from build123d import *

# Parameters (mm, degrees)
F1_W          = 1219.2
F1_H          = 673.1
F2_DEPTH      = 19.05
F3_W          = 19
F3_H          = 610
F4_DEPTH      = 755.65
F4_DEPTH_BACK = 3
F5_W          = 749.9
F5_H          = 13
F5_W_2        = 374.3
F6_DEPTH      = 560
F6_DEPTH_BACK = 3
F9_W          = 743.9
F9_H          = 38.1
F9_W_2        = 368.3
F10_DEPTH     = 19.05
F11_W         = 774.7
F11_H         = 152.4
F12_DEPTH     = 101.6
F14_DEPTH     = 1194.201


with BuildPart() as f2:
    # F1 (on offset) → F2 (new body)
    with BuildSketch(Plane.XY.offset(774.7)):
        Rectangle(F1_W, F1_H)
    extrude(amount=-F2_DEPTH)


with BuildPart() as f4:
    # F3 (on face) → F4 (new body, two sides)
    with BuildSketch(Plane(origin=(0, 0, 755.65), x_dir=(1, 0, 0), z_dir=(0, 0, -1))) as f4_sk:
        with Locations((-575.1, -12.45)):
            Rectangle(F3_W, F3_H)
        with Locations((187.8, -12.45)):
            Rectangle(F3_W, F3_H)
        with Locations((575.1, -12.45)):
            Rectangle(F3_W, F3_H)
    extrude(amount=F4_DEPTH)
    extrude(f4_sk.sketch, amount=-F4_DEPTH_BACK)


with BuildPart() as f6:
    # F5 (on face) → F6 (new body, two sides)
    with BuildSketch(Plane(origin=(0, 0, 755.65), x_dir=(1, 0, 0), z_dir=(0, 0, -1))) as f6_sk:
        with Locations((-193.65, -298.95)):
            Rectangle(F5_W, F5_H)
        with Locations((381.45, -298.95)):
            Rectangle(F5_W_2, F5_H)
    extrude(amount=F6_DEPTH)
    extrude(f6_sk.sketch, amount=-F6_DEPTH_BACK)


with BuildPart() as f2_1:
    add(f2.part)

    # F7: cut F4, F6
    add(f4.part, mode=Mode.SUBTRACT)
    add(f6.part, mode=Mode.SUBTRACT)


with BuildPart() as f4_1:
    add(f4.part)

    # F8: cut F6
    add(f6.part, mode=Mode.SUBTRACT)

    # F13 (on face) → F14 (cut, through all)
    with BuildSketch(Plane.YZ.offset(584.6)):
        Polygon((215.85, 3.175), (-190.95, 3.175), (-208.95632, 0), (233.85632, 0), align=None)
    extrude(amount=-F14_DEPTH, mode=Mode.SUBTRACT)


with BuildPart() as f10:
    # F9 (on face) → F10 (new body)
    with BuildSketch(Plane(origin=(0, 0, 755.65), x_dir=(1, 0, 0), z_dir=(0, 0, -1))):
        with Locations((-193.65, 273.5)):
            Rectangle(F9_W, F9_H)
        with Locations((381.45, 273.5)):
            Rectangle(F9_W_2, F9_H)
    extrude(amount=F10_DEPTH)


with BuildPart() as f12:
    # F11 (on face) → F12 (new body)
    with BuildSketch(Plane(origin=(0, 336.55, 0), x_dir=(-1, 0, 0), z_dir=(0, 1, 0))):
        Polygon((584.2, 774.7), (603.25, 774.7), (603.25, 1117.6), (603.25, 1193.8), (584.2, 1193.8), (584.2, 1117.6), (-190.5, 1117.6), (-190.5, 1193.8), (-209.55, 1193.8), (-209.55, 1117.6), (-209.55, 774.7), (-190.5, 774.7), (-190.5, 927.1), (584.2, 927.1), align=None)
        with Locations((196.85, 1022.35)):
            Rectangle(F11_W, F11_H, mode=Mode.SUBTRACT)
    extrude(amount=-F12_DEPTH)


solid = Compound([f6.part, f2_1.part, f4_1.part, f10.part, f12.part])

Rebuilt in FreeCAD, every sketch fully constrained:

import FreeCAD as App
import Part
import Sketcher
Q = App.Units.Quantity


def add_polygon(sketch, points):
    """Adds a closed chain of lines whose ends are joined by coincident constraints."""
    first, n = sketch.GeometryCount, len(points)
    for a, b in zip(points, points[1:] + points[:1]):
        sketch.addGeometry(Part.LineSegment(App.Vector(*a, 0), App.Vector(*b, 0)), False)
    for i in range(n):
        sketch.addConstraint(Sketcher.Constraint("Coincident", first + i, 2, first + (i + 1) % n, 1))

doc = App.newDocument("Part")
body = doc.addObject("PartDesign::Body", "Body")

# Sketch on XY plane
sketch1 = body.newObject("Sketcher::SketchObject", "Sketch")
sketch1.AttachmentSupport = (doc.getObject("XY_Plane"), [""])
sketch1.MapMode = "FlatFace"
sketch1.AttachmentOffset = App.Placement(App.Vector(0, 0, 30.5 * 25.4), App.Rotation())
add_polygon(sketch1, [(-610, 337), (-610, -337), (610, -337), (610, 337)])  # lines 0-3
sketch1.addConstraint(Sketcher.Constraint("Vertical", 0))
sketch1.addConstraint(Sketcher.Constraint("Horizontal", 1))
sketch1.addConstraint(Sketcher.Constraint("Vertical", 2))
sketch1.addConstraint(Sketcher.Constraint("Horizontal", 3))
sketch1.addConstraint(Sketcher.Constraint("Symmetric", 0, 2, 2, 2, -1, 1))
sketch1.addConstraint(Sketcher.Constraint("DistanceX", 1, 1, 1, 2, Q("48 in")))
sketch1.addConstraint(Sketcher.Constraint("DistanceY", 0, 2, 0, 1, Q("26.5 in")))
pad1 = body.newObject("PartDesign::Pad", "Pad")
pad1.Profile = sketch1
pad1.Length = Q("0.75 in")
pad1.Reversed = True
body2 = doc.addObject("PartDesign::Body", "Body001")
body2.AllowCompound = True

# Sketch on XY plane
sketch2 = body2.newObject("Sketcher::SketchObject", "Sketch001")
sketch2.AttachmentSupport = (doc.getObject("XY_Plane001"), [""])
sketch2.MapMode = "FlatFace"
sketch2.AttachmentOffset = App.Placement(App.Vector(0, 0, 29.75 * 25.4), App.Rotation())
add_polygon(sketch2, [(-585, -293), (-585, 317), (-566, 317), (-566, -293)])  # lines 0-3
add_polygon(sketch2, [(178, -293), (178, 317), (197, 317), (197, -293)])  # lines 4-7
add_polygon(sketch2, [(566, -293), (566, 317), (585, 317), (585, -293)])  # lines 8-11
sketch2.addConstraint(Sketcher.Constraint("Vertical", 0))
sketch2.addConstraint(Sketcher.Constraint("Horizontal", 1))
sketch2.addConstraint(Sketcher.Constraint("Vertical", 2))
sketch2.addConstraint(Sketcher.Constraint("Horizontal", 3))
sketch2.addConstraint(Sketcher.Constraint("Vertical", 4))
sketch2.addConstraint(Sketcher.Constraint("Horizontal", 5))
sketch2.addConstraint(Sketcher.Constraint("Vertical", 6))
sketch2.addConstraint(Sketcher.Constraint("Horizontal", 7))
sketch2.addConstraint(Sketcher.Constraint("Vertical", 8))
sketch2.addConstraint(Sketcher.Constraint("Horizontal", 9))
sketch2.addConstraint(Sketcher.Constraint("Vertical", 10))
sketch2.addConstraint(Sketcher.Constraint("Horizontal", 11))
sketch2.addConstraint(Sketcher.Constraint("Symmetric", 1, 2, 8, 2, -2))
sketch2.addConstraint(Sketcher.Constraint("Symmetric", 3, 2, 10, 2, -2))
sketch2.addConstraint(Sketcher.Constraint("Horizontal", 1, 2, 4, 2))
sketch2.addConstraint(Sketcher.Constraint("Horizontal", 3, 2, 6, 2))
sketch2.addConstraint(Sketcher.Constraint("Equal", 3, 5))
sketch2.addConstraint(Sketcher.Constraint("DistanceX", 5, 2, 8, 2, Q("14.5 in")))
sketch2.addConstraint(Sketcher.Constraint("DistanceX", 1, 1, 1, 2, Q("19 mm")))
sketch2.addConstraint(Sketcher.Constraint("DistanceY", 0, 1, 0, 2, Q("610 mm")))
sketch2.addConstraint(Sketcher.Constraint("DistanceX", 0, 2, -1, 1, Q("584.6 mm")))
sketch2.addConstraint(Sketcher.Constraint("DistanceY", -1, 1, 0, 2, Q("317.45 mm")))
pad2 = body2.newObject("PartDesign::Pad", "Pad001")
pad2.Profile = sketch2
pad2.Type = "TwoLengths"
pad2.Length = Q("29.75 in")
pad2.Length2 = 3
pad2.Reversed = True
body3 = doc.addObject("PartDesign::Body", "Body002")
body3.AllowCompound = True

# Sketch on XY plane
sketch3 = body3.newObject("Sketcher::SketchObject", "Sketch002")
sketch3.AttachmentSupport = (doc.getObject("XY_Plane002"), [""])
sketch3.MapMode = "FlatFace"
sketch3.AttachmentOffset = App.Placement(App.Vector(0, 0, 29.75 * 25.4), App.Rotation())
add_polygon(sketch3, [(-569, 292), (-569, 305), (181, 305), (181, 292)])  # lines 0-3
add_polygon(sketch3, [(194, 292), (194, 305), (569, 305), (569, 292)])  # lines 4-7
sketch3.addConstraint(Sketcher.Constraint("Vertical", 0))
sketch3.addConstraint(Sketcher.Constraint("Horizontal", 1))
sketch3.addConstraint(Sketcher.Constraint("Vertical", 2))
sketch3.addConstraint(Sketcher.Constraint("Horizontal", 3))
sketch3.addConstraint(Sketcher.Constraint("Vertical", 4))
sketch3.addConstraint(Sketcher.Constraint("Horizontal", 5))
sketch3.addConstraint(Sketcher.Constraint("Vertical", 6))
sketch3.addConstraint(Sketcher.Constraint("Horizontal", 7))
sketch3.addConstraint(Sketcher.Constraint("Symmetric", 0, 2, 5, 2, -2))
sketch3.addConstraint(Sketcher.Constraint("Horizontal", 3, 2, 6, 2))
sketch3.addConstraint(Sketcher.Constraint("DistanceX", 1, 1, 1, 2, Q("749.9 mm")))
sketch3.addConstraint(Sketcher.Constraint("DistanceX", 5, 1, 5, 2, Q("374.3 mm")))
sketch3.addConstraint(Sketcher.Constraint("DistanceY", 0, 1, 0, 2, Q("13 mm")))
sketch3.addConstraint(Sketcher.Constraint("DistanceX", 0, 2, -1, 1, Q("568.6 mm")))
sketch3.addConstraint(Sketcher.Constraint("DistanceY", -1, 1, 0, 2, Q("305.45 mm")))
pad3 = body3.newObject("PartDesign::Pad", "Pad002")
pad3.Profile = sketch3
pad3.Type = "TwoLengths"
pad3.Length = 560
pad3.Length2 = 3
pad3.Reversed = True
doc.recompute()

body4 = doc.addObject("PartDesign::Body", "Body003")
body4.BaseFeature = body2
boolean = body.newObject("PartDesign::Boolean", "Boolean")
boolean.Type = "Cut"
boolean.addObjects([body4])
doc.recompute()

body5 = doc.addObject("PartDesign::Body", "Body004")
body5.BaseFeature = body3
boolean2 = body.newObject("PartDesign::Boolean", "Boolean001")
boolean2.Type = "Cut"
boolean2.addObjects([body5])
doc.recompute()
body2.AllowCompound = True
doc.recompute()

body6 = doc.addObject("PartDesign::Body", "Body005")
body6.BaseFeature = body3
boolean3 = body2.newObject("PartDesign::Boolean", "Boolean002")
boolean3.Type = "Cut"
boolean3.addObjects([body6])
doc.recompute()

# Sketch on YZ plane
sketch4 = body2.newObject("Sketcher::SketchObject", "Sketch003")
sketch4.AttachmentSupport = (doc.getObject("YZ_Plane001"), [""])
sketch4.MapMode = "FlatFace"
sketch4.AttachmentOffset = App.Placement(App.Vector(0, 0, 584.6), App.Rotation())
add_polygon(sketch4, [(216, 3), (-191, 3), (-209, 0), (234, 0)])  # lines 0-3
sketch4.addConstraint(Sketcher.Constraint("Horizontal", 0))
sketch4.addConstraint(Sketcher.Constraint("Horizontal", 2))
sketch4.addConstraint(Sketcher.Constraint("PointOnObject", 1, 2, -1))
sketch4.addConstraint(Sketcher.Constraint("Equal", 1, 3))
sketch4.addConstraint(Sketcher.Constraint("Angle", 1, Q("-170 deg")))
sketch4.addConstraint(Sketcher.Constraint("DistanceY", -1, 1, 0, 2, Q("0.125 in")))
sketch4.addConstraint(Sketcher.Constraint("DistanceX", 0, 2, 0, 1, Q("406.8 mm")))
sketch4.addConstraint(Sketcher.Constraint("DistanceX", 0, 2, -1, 1, Q("190.95 mm")))
pocket1 = body2.newObject("PartDesign::Pocket", "Pocket")
pocket1.Profile = sketch4
pocket1.Type = "ThroughAll"
body7 = doc.addObject("PartDesign::Body", "Body006")
body7.AllowCompound = True

# Sketch on XY plane
sketch5 = body7.newObject("Sketcher::SketchObject", "Sketch004")
sketch5.AttachmentSupport = (doc.getObject("XY_Plane006"), [""])
sketch5.MapMode = "FlatFace"
sketch5.AttachmentOffset = App.Placement(App.Vector(0, 0, 29.75 * 25.4), App.Rotation())
add_polygon(sketch5, [(-566, -293), (-566, -254), (178, -254), (178, -293)])  # lines 0-3
add_polygon(sketch5, [(197, -293), (197, -254), (566, -254), (566, -293)])  # lines 4-7
sketch5.addConstraint(Sketcher.Constraint("Vertical", 0))
sketch5.addConstraint(Sketcher.Constraint("Horizontal", 1))
sketch5.addConstraint(Sketcher.Constraint("Vertical", 2))
sketch5.addConstraint(Sketcher.Constraint("Horizontal", 3))
sketch5.addConstraint(Sketcher.Constraint("Vertical", 4))
sketch5.addConstraint(Sketcher.Constraint("Horizontal", 5))
sketch5.addConstraint(Sketcher.Constraint("Vertical", 6))
sketch5.addConstraint(Sketcher.Constraint("Horizontal", 7))
sketch5.addConstraint(Sketcher.Constraint("Symmetric", 0, 2, 5, 2, -2))
sketch5.addConstraint(Sketcher.Constraint("Horizontal", 3, 2, 6, 2))
sketch5.addConstraint(Sketcher.Constraint("DistanceX", 5, 1, 5, 2, Q("14.5 in")))
sketch5.addConstraint(Sketcher.Constraint("DistanceY", 0, 1, 0, 2, Q("1.5 in")))
sketch5.addConstraint(Sketcher.Constraint("DistanceX", 1, 1, 1, 2, Q("743.9 mm")))
sketch5.addConstraint(Sketcher.Constraint("DistanceX", 0, 2, -1, 1, Q("565.6 mm")))
sketch5.addConstraint(Sketcher.Constraint("DistanceY", 0, 2, -1, 1, Q("254.45 mm")))
pad4 = body7.newObject("PartDesign::Pad", "Pad003")
pad4.Profile = sketch5
pad4.Length = Q("0.75 in")
pad4.Reversed = True
body8 = doc.addObject("PartDesign::Body", "Body007")

# Sketch on XZ plane
sketch6 = body8.newObject("Sketcher::SketchObject", "Sketch005")
sketch6.AttachmentSupport = (doc.getObject("XZ_Plane007"), [""])
sketch6.MapMode = "FlatFace"
sketch6.AttachmentOffset = App.Placement(App.Vector(0, 0, -13.25 * 25.4), App.Rotation())
add_polygon(sketch6, [(-584, 775), (-603, 775), (-603, 1194), (-584, 1194), (-584, 1118), (190, 1118), (190, 1194), (210, 1194), (210, 775), (190, 775), (190, 927), (-584, 927)])  # lines 0-11
add_polygon(sketch6, [(-584, 946), (190, 946), (190, 1099), (-584, 1099)])  # lines 12-15
sketch6.addConstraint(Sketcher.Constraint("Horizontal", 0))
sketch6.addConstraint(Sketcher.Constraint("Vertical", 1))
sketch6.addConstraint(Sketcher.Constraint("Horizontal", 2))
sketch6.addConstraint(Sketcher.Constraint("Vertical", 3))
sketch6.addConstraint(Sketcher.Constraint("Horizontal", 4))
sketch6.addConstraint(Sketcher.Constraint("Vertical", 5))
sketch6.addConstraint(Sketcher.Constraint("Horizontal", 6))
sketch6.addConstraint(Sketcher.Constraint("Vertical", 7))
sketch6.addConstraint(Sketcher.Constraint("Horizontal", 8))
sketch6.addConstraint(Sketcher.Constraint("Vertical", 9))
sketch6.addConstraint(Sketcher.Constraint("Horizontal", 10))
sketch6.addConstraint(Sketcher.Constraint("Vertical", 11))
sketch6.addConstraint(Sketcher.Constraint("Horizontal", 12))
sketch6.addConstraint(Sketcher.Constraint("Vertical", 13))
sketch6.addConstraint(Sketcher.Constraint("Horizontal", 14))
sketch6.addConstraint(Sketcher.Constraint("Vertical", 15))
sketch6.addConstraint(Sketcher.Constraint("Horizontal", 2, 2, 5, 2))
sketch6.addConstraint(Sketcher.Constraint("Horizontal", 0, 2, 7, 2))
sketch6.addConstraint(Sketcher.Constraint("Vertical", 5, 2, 8, 2))
sketch6.addConstraint(Sketcher.Constraint("Vertical", 3, 2, 10, 2))
sketch6.addConstraint(Sketcher.Constraint("Vertical", 9, 2, 12, 2))
sketch6.addConstraint(Sketcher.Constraint("Vertical", 11, 2, 14, 2))
sketch6.addConstraint(Sketcher.Constraint("Equal", 2, 6))
sketch6.addConstraint(Sketcher.Constraint("Equal", 11, 13))
sketch6.addConstraint(Sketcher.Constraint("DistanceY", 3, 2, 3, 1, Q("3 in")))
sketch6.addConstraint(Sketcher.Constraint("DistanceY", 9, 1, 9, 2, Q("6 in")))
sketch6.addConstraint(Sketcher.Constraint("DistanceX", 4, 1, 4, 2, Q("30.5 in")))
sketch6.addConstraint(Sketcher.Constraint("DistanceY", 1, 1, 1, 2, Q("16.5 in")))
sketch6.addConstraint(Sketcher.Constraint("DistanceY", -1, 1, 1, 2, Q("47 in")))
sketch6.addConstraint(Sketcher.Constraint("DistanceX", 2, 2, -1, 1, Q("23 in")))
sketch6.addConstraint(Sketcher.Constraint("DistanceX", 1, 2, 6, 2, Q("32 in")))
sketch6.addConstraint(Sketcher.Constraint("DistanceY", -1, 1, 12, 2, Q("37.25 in")))
pad5 = body8.newObject("PartDesign::Pad", "Pad004")
pad5.Profile = sketch6
pad5.Length = Q("4 in")

doc.recompute()
